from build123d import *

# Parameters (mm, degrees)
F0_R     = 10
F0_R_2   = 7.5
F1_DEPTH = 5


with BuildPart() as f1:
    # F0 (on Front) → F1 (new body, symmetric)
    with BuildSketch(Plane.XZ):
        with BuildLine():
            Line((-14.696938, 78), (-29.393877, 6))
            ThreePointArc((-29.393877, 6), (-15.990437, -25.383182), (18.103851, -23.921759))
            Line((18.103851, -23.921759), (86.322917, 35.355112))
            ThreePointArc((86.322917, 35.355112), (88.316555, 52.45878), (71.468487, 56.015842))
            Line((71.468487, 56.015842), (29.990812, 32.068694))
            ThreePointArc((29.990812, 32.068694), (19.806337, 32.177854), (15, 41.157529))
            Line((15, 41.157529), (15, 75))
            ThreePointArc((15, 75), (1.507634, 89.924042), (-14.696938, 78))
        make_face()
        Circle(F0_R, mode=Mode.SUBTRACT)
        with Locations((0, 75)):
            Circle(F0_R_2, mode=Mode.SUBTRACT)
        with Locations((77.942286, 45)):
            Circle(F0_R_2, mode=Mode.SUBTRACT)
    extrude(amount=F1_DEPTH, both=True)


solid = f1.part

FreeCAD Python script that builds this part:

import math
import FreeCAD as App
import Part
import Sketcher
from FreeCAD import Vector
Q = App.Units.Quantity

doc = App.newDocument("Part")
body = doc.addObject("PartDesign::Body", "Body")

sketch1 = body.newObject("Sketcher::SketchObject", "Sketch")
sketch1.AttachmentSupport = (doc.getObject("XZ_Plane"), [""])
sketch1.MapMode = "FlatFace"
sketch1.addGeometry([
    Part.LineSegment(Vector(-14.696938, 78, 0), Vector(-29.393877, 6, 0)),
    Part.ArcOfCircle(Part.Circle(Vector(0, 0, 0), Vector(0, 0, 1), 30), math.radians(168.463041), math.radians(307.118229)),
    Part.LineSegment(Vector(18.103851, -23.921759, 0), Vector(86.322917, 35.355112, 0)),
    Part.ArcOfCircle(Part.Circle(Vector(77.942286, 45, 0), Vector(0, 0, 1), 12.777278), math.radians(-49.01199), math.radians(120.441939)),
    Part.LineSegment(Vector(71.468487, 56.015842, 0), Vector(29.990812, 32.068694, 0)),
    Part.ArcOfCircle(Part.Circle(Vector(24.990812, 40.728949, 0), Vector(0, 0, 1), 10.000001), math.radians(177.543666), math.radians(299.999994)),
    Part.LineSegment(Vector(15, 41.157529, 0), Vector(15, 75, 0)),
    Part.ArcOfCircle(Part.Circle(Vector(0, 75, 0), Vector(0, 0, 1), 15), math.radians(0.000001), math.radians(168.46304)),
    Part.Circle(Vector(0, 0, 0), Vector(0, 0, 1), 10),
    Part.Circle(Vector(0, 75, 0), Vector(0, 0, 1), 7.5),
    Part.Circle(Vector(77.942286, 45, 0), Vector(0, 0, 1), 7.5),
], False)
sketch1.addConstraint([
    Sketcher.Constraint("Tangent", 0, 2, 1, 1),
    Sketcher.Constraint("Coincident", 1, 2, 2, 1),
    Sketcher.Constraint("Tangent", 2, 2, 3, 1),
    Sketcher.Constraint("Coincident", 3, 2, 4, 1),
    Sketcher.Constraint("Tangent", 4, 2, 5, 2),
    Sketcher.Constraint("Coincident", 5, 1, 6, 1),
    Sketcher.Constraint("Tangent", 6, 2, 7, 1),
    Sketcher.Constraint("Tangent", 7, 2, 0, 1),
    Sketcher.Constraint("Vertical", 6),
    Sketcher.Constraint("Coincident", 1, 3, -1, 1),
    Sketcher.Constraint("Coincident", 8, 3, -1, 1),
    Sketcher.Constraint("Coincident", 9, 3, 7, 3),
    Sketcher.Constraint("Coincident", 10, 3, 3, 3),
    Sketcher.Constraint("Equal", 5, 8),
    Sketcher.Constraint("Equal", 9, 10),
    Sketcher.Constraint("PointOnObject", 7, 3, -2),
    Sketcher.Constraint("Diameter", 8, 20.0),
    Sketcher.Constraint("Diameter", 9, 15.0),
    Sketcher.Constraint("Radius", 1, 30.0),
    Sketcher.Constraint("Radius", 7, 15.0),
    Sketcher.Constraint("Angle", 4, Q("-149.999999 deg")),
    Sketcher.Constraint("DistanceY", -1, 1, 3, 3, 45.0),
    Sketcher.Constraint("DistanceY", -1, 1, 7, 3, 75.0),
    Sketcher.Constraint("Radius", 3, 12.777278),
    Sketcher.Constraint("DistanceY", 6, 1, 6, 2, 33.842471),
    Sketcher.Constraint("DistanceX", 3, 2, 3, 3, 6.473799),
    Sketcher.Constraint("Distance", 2, 90.374711),
    Sketcher.Constraint("DistanceY", -1, 1, 5, 3, 40.728949),
])
pad1 = body.newObject("PartDesign::Pad", "Pad")
pad1.Profile = sketch1
pad1.Length = 10
pad1.Midplane = True

doc.recompute()
